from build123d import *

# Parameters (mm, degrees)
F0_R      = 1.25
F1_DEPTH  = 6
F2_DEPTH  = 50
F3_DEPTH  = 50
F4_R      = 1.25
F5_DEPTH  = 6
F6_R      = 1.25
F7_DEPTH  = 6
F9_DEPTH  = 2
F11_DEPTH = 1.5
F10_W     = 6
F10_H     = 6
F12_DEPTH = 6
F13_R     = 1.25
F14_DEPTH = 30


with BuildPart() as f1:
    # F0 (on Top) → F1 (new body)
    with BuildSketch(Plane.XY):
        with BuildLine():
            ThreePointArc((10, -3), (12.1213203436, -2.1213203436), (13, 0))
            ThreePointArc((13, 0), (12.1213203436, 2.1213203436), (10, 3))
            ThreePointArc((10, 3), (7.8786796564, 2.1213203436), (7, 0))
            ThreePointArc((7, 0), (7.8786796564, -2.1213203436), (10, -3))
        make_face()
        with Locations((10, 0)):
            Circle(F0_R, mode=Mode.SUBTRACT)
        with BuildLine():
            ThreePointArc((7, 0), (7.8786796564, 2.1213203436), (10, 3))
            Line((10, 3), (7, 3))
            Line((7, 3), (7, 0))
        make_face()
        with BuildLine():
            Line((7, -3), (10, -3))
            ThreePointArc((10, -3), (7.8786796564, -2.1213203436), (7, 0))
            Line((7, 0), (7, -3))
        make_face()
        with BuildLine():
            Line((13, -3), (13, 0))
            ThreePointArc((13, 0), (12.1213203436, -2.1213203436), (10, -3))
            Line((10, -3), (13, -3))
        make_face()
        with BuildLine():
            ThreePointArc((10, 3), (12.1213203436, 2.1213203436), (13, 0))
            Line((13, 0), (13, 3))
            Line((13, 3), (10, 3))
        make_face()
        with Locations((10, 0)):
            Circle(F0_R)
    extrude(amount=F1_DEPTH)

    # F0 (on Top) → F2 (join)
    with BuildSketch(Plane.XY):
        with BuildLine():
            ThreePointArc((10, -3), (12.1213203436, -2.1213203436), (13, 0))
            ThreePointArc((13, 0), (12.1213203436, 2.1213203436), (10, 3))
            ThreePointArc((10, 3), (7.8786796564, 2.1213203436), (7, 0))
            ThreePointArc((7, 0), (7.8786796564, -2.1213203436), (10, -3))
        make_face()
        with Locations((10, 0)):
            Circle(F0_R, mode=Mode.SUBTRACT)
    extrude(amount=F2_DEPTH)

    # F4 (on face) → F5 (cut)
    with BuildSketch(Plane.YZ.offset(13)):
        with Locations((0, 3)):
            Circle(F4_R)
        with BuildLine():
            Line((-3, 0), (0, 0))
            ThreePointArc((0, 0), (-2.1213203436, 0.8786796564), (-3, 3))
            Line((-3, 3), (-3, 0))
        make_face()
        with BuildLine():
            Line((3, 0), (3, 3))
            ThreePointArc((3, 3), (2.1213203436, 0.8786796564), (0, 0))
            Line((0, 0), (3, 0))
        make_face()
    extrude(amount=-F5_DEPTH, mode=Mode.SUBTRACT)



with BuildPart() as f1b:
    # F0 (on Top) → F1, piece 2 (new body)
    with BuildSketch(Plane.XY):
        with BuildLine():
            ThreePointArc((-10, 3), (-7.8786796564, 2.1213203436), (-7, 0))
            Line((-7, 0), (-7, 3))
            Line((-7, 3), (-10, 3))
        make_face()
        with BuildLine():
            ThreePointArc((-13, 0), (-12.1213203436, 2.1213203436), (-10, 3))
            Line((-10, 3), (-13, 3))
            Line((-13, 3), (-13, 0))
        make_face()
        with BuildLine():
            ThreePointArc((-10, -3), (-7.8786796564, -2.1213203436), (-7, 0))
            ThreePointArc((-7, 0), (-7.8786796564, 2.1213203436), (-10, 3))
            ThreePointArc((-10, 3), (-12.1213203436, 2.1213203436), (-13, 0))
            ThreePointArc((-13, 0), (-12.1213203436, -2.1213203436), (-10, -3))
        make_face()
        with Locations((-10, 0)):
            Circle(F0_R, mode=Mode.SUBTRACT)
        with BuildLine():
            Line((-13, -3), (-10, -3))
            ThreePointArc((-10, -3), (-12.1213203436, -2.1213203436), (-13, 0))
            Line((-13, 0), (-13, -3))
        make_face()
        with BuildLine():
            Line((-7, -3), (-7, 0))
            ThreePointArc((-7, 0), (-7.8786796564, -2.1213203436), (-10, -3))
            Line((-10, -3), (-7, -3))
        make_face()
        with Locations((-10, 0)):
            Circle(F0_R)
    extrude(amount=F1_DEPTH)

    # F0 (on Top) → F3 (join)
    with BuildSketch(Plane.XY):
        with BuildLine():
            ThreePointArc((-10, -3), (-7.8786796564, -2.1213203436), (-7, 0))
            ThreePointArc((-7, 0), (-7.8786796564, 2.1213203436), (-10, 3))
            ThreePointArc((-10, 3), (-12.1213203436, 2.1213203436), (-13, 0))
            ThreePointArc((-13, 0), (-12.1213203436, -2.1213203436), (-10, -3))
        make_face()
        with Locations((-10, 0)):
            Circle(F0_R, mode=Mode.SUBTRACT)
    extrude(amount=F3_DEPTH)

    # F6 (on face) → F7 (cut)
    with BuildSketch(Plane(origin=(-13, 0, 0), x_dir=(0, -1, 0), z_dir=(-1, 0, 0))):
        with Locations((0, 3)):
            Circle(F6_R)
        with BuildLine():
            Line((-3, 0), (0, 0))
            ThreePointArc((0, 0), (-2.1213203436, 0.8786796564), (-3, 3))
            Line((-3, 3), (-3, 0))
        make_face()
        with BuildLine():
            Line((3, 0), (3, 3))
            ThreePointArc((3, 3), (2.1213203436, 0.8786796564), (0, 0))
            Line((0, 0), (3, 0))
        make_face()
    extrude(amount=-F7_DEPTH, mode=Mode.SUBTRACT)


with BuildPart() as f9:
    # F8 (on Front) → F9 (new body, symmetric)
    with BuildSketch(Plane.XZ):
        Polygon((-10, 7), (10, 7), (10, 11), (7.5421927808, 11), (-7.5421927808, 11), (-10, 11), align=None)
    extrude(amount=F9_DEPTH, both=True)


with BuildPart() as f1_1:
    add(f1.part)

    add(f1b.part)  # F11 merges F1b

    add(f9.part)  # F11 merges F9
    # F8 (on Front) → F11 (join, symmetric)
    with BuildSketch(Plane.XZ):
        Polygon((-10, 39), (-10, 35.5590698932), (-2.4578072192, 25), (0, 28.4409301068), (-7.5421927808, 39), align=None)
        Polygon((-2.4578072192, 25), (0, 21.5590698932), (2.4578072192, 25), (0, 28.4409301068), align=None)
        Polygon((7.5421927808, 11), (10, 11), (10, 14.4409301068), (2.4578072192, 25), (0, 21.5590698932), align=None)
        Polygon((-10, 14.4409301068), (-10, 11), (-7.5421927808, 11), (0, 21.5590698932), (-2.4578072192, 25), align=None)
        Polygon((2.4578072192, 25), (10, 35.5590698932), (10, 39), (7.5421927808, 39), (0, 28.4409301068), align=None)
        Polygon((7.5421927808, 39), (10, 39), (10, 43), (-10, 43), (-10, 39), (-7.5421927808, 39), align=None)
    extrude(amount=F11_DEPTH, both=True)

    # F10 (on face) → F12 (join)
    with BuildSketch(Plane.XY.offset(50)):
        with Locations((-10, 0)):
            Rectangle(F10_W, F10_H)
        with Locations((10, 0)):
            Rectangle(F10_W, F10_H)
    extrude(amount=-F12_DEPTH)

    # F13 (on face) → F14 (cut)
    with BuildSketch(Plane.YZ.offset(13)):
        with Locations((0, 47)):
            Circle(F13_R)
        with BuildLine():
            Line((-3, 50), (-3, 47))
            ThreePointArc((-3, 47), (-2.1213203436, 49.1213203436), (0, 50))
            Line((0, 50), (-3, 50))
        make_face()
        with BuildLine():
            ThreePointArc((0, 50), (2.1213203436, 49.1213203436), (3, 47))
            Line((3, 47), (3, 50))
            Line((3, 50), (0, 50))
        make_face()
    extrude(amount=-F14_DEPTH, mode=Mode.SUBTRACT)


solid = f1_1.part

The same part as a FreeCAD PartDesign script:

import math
import FreeCAD as App
import Part
import Sketcher
from FreeCAD import Vector
Q = App.Units.Quantity


def add_polygon(sketch, points):
    """Adds a closed chain of lines whose ends are joined by coincident constraints."""
    first, n = sketch.GeometryCount, len(points)
    for a, b in zip(points, points[1:] + points[:1]):
        sketch.addGeometry(Part.LineSegment(App.Vector(*a, 0), App.Vector(*b, 0)), False)
    for i in range(n):
        sketch.addConstraint(Sketcher.Constraint("Coincident", first + i, 2, first + (i + 1) % n, 1))

doc = App.newDocument("Part")
body = doc.addObject("PartDesign::Body", "Body")

# Sketch on XY plane
sketch1 = doc.addObject("Sketcher::SketchObject", "Sketch")
body.addObject(sketch1)
sketch1.AttachmentSupport = (doc.XY_Plane, [""])
sketch1.MapMode = "FlatFace"
add_polygon(sketch1, [(7, 3), (7, -3), (13, -3), (13, 3)])  # lines 0-3
sketch1.addConstraint([
    Sketcher.Constraint("Vertical", 0),
    Sketcher.Constraint("Horizontal", 1),
    Sketcher.Constraint("Vertical", 2),
    Sketcher.Constraint("Horizontal", 3),
    Sketcher.Constraint("Equal", 3, 0),
    Sketcher.Constraint("DistanceX", 1, 1, 1, 2, Q("6 mm")),
    Sketcher.Constraint("DistanceX", -1, 1, 0, 2, Q("7 mm")),
    Sketcher.Constraint("DistanceY", 0, 2, -1, 1, Q("3 mm")),
])
pad1 = doc.addObject("PartDesign::Pad", "Pad")
body.addObject(pad1)
pad1.Profile = sketch1
pad1.Length = 6

# Sketch on XY plane
sketch2 = doc.addObject("Sketcher::SketchObject", "Sketch001")
body.addObject(sketch2)
sketch2.AttachmentSupport = (doc.XY_Plane, [""])
sketch2.MapMode = "FlatFace"
sketch2.addGeometry([
    Part.ArcOfCircle(Part.Circle(Vector(10, 0, 0), Vector(0, 0, 1), 3), math.radians(-90), math.radians(0)),  # 0
    Part.ArcOfCircle(Part.Circle(Vector(10, 0, 0), Vector(0, 0, 1), 3), math.radians(0), math.radians(90)),  # 1
    Part.ArcOfCircle(Part.Circle(Vector(10, 0, 0), Vector(0, 0, 1), 3), math.radians(90), math.radians(180)),  # 2
    Part.ArcOfCircle(Part.Circle(Vector(10, 0, 0), Vector(0, 0, 1), 3), math.radians(180), math.radians(270)),  # 3
    Part.Circle(Vector(10, 0, 0), Vector(0, 0, 1), 1.2),  # 4
], False)
sketch2.addConstraint([
    Sketcher.Constraint("Tangent", 0, 2, 1, 1),
    Sketcher.Constraint("Tangent", 1, 2, 2, 1),
    Sketcher.Constraint("Tangent", 2, 2, 3, 1),
    Sketcher.Constraint("Tangent", 3, 2, 0, 1),
    Sketcher.Constraint("Coincident", 4, 3, 0, 3),
    Sketcher.Constraint("Equal", 0, 1),
    Sketcher.Constraint("Symmetric", 1, 2, 3, 2, -1),
    Sketcher.Constraint("PointOnObject", 0, 2, -1),
    Sketcher.Constraint("PointOnObject", 2, 2, -1),
    Sketcher.Constraint("Vertical", 4, 3, 1, 2),
    Sketcher.Constraint("Radius", 0, Q("3 mm")),
    Sketcher.Constraint("Diameter", 4, Q("2.5 mm")),
    Sketcher.Constraint("DistanceX", -1, 1, 0, 3, Q("10 mm")),
])
pad2 = doc.addObject("PartDesign::Pad", "Pad001")
body.addObject(pad2)
pad2.Profile = sketch2
pad2.Length = 50

# Sketch on YZ plane
sketch3 = doc.addObject("Sketcher::SketchObject", "Sketch002")
body.addObject(sketch3)
sketch3.AttachmentSupport = (doc.YZ_Plane, [""])
sketch3.MapMode = "FlatFace"
sketch3.AttachmentOffset = App.Placement(Vector(0, 0, 13), App.Rotation())
sketch3.addGeometry([
    Part.Circle(Vector(0, 3, 0), Vector(0, 0, 1), 1.2),  # 0
    Part.LineSegment(Vector(-3, 0, 0), Vector(0, 0, 0)),  # 1
    Part.ArcOfCircle(Part.Circle(Vector(0, 3, 0), Vector(0, 0, 1), 3), math.radians(180), math.radians(270)),  # 2
    Part.LineSegment(Vector(-3, 3, 0), Vector(-3, 0, 0)),  # 3
    Part.LineSegment(Vector(3, 0, 0), Vector(3, 3, 0)),  # 4
    Part.ArcOfCircle(Part.Circle(Vector(0, 3, 0), Vector(0, 0, 1), 3), math.radians(-90), math.radians(0)),  # 5
    Part.LineSegment(Vector(0, 0, 0), Vector(3, 0, 0)),  # 6
], False)
sketch3.addConstraint([
    Sketcher.Constraint("Tangent", 1, 2, 2, 2),
    Sketcher.Constraint("Tangent", 2, 1, 3, 1),
    Sketcher.Constraint("Coincident", 3, 2, 1, 1),
    Sketcher.Constraint("Tangent", 4, 2, 5, 2),
    Sketcher.Constraint("Tangent", 5, 1, 6, 1),
    Sketcher.Constraint("Coincident", 6, 2, 4, 1),
    Sketcher.Constraint("Horizontal", 1),
    Sketcher.Constraint("Vertical", 3),
    Sketcher.Constraint("Vertical", 4),
    Sketcher.Constraint("Horizontal", 6),
    Sketcher.Constraint("Coincident", 1, 2, -1, 1),
    Sketcher.Constraint("Coincident", 5, 1, -1, 1),
    Sketcher.Constraint("Coincident", 2, 3, 0, 3),
    Sketcher.Constraint("Equal", 2, 5),
    Sketcher.Constraint("Radius", 2, Q("3 mm")),
    Sketcher.Constraint("Diameter", 0, Q("2.5 mm")),
])
pocket1 = doc.addObject("PartDesign::Pocket", "Pocket")
body.addObject(pocket1)
pocket1.Profile = sketch3
pocket1.Length = 6
body2 = doc.addObject("PartDesign::Body", "Body001")

# Sketch on XY plane
sketch4 = doc.addObject("Sketcher::SketchObject", "Sketch003")
body2.addObject(sketch4)
sketch4.AttachmentSupport = (doc.getObject("XY_Plane001"), [""])
sketch4.MapMode = "FlatFace"
add_polygon(sketch4, [(-7, 3), (-13, 3), (-13, -3), (-7, -3)])  # lines 0-3
sketch4.addConstraint([
    Sketcher.Constraint("Horizontal", 0),
    Sketcher.Constraint("Vertical", 1),
    Sketcher.Constraint("Horizontal", 2),
    Sketcher.Constraint("Vertical", 3),
    Sketcher.Constraint("Equal", 2, 1),
    Sketcher.Constraint("DistanceX", 0, 2, 0, 1, Q("6 mm")),
    Sketcher.Constraint("DistanceX", 0, 2, -1, 1, Q("13 mm")),
    Sketcher.Constraint("DistanceY", -1, 1, 0, 2, Q("3 mm")),
])
pad3 = doc.addObject("PartDesign::Pad", "Pad002")
body2.addObject(pad3)
pad3.Profile = sketch4
pad3.Length = 6

# Sketch on XY plane
sketch5 = doc.addObject("Sketcher::SketchObject", "Sketch004")
body2.addObject(sketch5)
sketch5.AttachmentSupport = (doc.getObject("XY_Plane001"), [""])
sketch5.MapMode = "FlatFace"
sketch5.addGeometry([
    Part.ArcOfCircle(Part.Circle(Vector(-10, 0, 0), Vector(0, 0, 1), 3), math.radians(-90), math.radians(0)),  # 0
    Part.ArcOfCircle(Part.Circle(Vector(-10, 0, 0), Vector(0, 0, 1), 3), math.radians(0), math.radians(90)),  # 1
    Part.ArcOfCircle(Part.Circle(Vector(-10, 0, 0), Vector(0, 0, 1), 3), math.radians(90), math.radians(180)),  # 2
    Part.ArcOfCircle(Part.Circle(Vector(-10, 0, 0), Vector(0, 0, 1), 3), math.radians(180), math.radians(270)),  # 3
    Part.Circle(Vector(-10, 0, 0), Vector(0, 0, 1), 1.2),  # 4
], False)
sketch5.addConstraint([
    Sketcher.Constraint("Tangent", 0, 2, 1, 1),
    Sketcher.Constraint("Tangent", 1, 2, 2, 1),
    Sketcher.Constraint("Tangent", 2, 2, 3, 1),
    Sketcher.Constraint("Tangent", 3, 2, 0, 1),
    Sketcher.Constraint("Coincident", 4, 3, 0, 3),
    Sketcher.Constraint("Equal", 0, 1),
    Sketcher.Constraint("Symmetric", 1, 2, 3, 2, -1),
    Sketcher.Constraint("PointOnObject", 0, 2, -1),
    Sketcher.Constraint("PointOnObject", 2, 2, -1),
    Sketcher.Constraint("Vertical", 4, 3, 1, 2),
    Sketcher.Constraint("Radius", 0, Q("3 mm")),
    Sketcher.Constraint("Diameter", 4, Q("2.5 mm")),
    Sketcher.Constraint("DistanceX", 0, 3, -1, 1, Q("10 mm")),
])
pad4 = doc.addObject("PartDesign::Pad", "Pad003")
body2.addObject(pad4)
pad4.Profile = sketch5
pad4.Length = 50

# Sketch on YZ plane
sketch6 = doc.addObject("Sketcher::SketchObject", "Sketch005")
body2.addObject(sketch6)
sketch6.AttachmentSupport = (doc.getObject("YZ_Plane001"), [""])
sketch6.MapMode = "FlatFace"
sketch6.AttachmentOffset = App.Placement(Vector(0, 0, -13), App.Rotation())
sketch6.addGeometry([
    Part.Circle(Vector(0, 3, 0), Vector(0, 0, 1), 1.2),  # 0
    Part.LineSegment(Vector(3, 0, 0), Vector(0, 0, 0)),  # 1
    Part.ArcOfCircle(Part.Circle(Vector(0, 3, 0), Vector(0, 0, 1), 3), math.radians(-90), math.radians(0)),  # 2
    Part.LineSegment(Vector(3, 3, 0), Vector(3, 0, 0)),  # 3
    Part.LineSegment(Vector(-3, 0, 0), Vector(-3, 3, 0)),  # 4
    Part.ArcOfCircle(Part.Circle(Vector(0, 3, 0), Vector(0, 0, 1), 3), math.radians(180), math.radians(270)),  # 5
    Part.LineSegment(Vector(0, 0, 0), Vector(-3, 0, 0)),  # 6
], False)
sketch6.addConstraint([
    Sketcher.Constraint("Tangent", 1, 2, 2, 1),
    Sketcher.Constraint("Tangent", 2, 2, 3, 1),
    Sketcher.Constraint("Coincident", 3, 2, 1, 1),
    Sketcher.Constraint("Tangent", 4, 2, 5, 1),
    Sketcher.Constraint("Tangent", 5, 2, 6, 1),
    Sketcher.Constraint("Coincident", 6, 2, 4, 1),
    Sketcher.Constraint("Horizontal", 1),
    Sketcher.Constraint("Vertical", 3),
    Sketcher.Constraint("Vertical", 4),
    Sketcher.Constraint("Horizontal", 6),
    Sketcher.Constraint("Coincident", 1, 2, -1, 1),
    Sketcher.Constraint("Coincident", 5, 2, -1, 1),
    Sketcher.Constraint("Coincident", 2, 3, 0, 3),
    Sketcher.Constraint("Equal", 2, 5),
    Sketcher.Constraint("Radius", 2, Q("3 mm")),
    Sketcher.Constraint("Diameter", 0, Q("2.5 mm")),
])
pocket2 = doc.addObject("PartDesign::Pocket", "Pocket001")
body2.addObject(pocket2)
pocket2.Profile = sketch6
pocket2.Length = 6
pocket2.Reversed = True
body3 = doc.addObject("PartDesign::Body", "Body002")

# Sketch on XZ plane
sketch7 = doc.addObject("Sketcher::SketchObject", "Sketch006")
body3.addObject(sketch7)
sketch7.AttachmentSupport = (doc.getObject("XZ_Plane002"), [""])
sketch7.MapMode = "FlatFace"
add_polygon(sketch7, [(-10, 7), (10, 7), (10, 11), (-10, 11)])  # lines 0-3
sketch7.addConstraint([
    Sketcher.Constraint("Horizontal", 0),
    Sketcher.Constraint("Vertical", 1),
    Sketcher.Constraint("Horizontal", 2),
    Sketcher.Constraint("Vertical", 3),
    Sketcher.Constraint("DistanceX", 0, 1, 0, 2, Q("20 mm")),
    Sketcher.Constraint("DistanceY", 1, 1, 1, 2, Q("4 mm")),
    Sketcher.Constraint("DistanceX", -1, 1, 0, 2, Q("10 mm")),
    Sketcher.Constraint("DistanceY", -1, 1, 0, 2, Q("7 mm")),
])
pad5 = doc.addObject("PartDesign::Pad", "Pad004")
body3.addObject(pad5)
pad5.Profile = sketch7
pad5.Length = 4
pad5.Midplane = True
body.AllowCompound = True
doc.recompute()

boolean = doc.addObject("PartDesign::Boolean", "Boolean")
body.addObject(boolean)
boolean.Type = "Fuse"
boolean.addObjects([body2])
doc.recompute()

boolean2 = doc.addObject("PartDesign::Boolean", "Boolean001")
body.addObject(boolean2)
boolean2.Type = "Fuse"
boolean2.addObjects([body3])

# Sketch on XZ plane
sketch8 = doc.addObject("Sketcher::SketchObject", "Sketch007")
body.addObject(sketch8)
sketch8.AttachmentSupport = (doc.XZ_Plane, [""])
sketch8.MapMode = "FlatFace"
add_polygon(sketch8, [(-10, 35.6), (-2.5, 25), (-10, 14.4), (-10, 11), (-7.5, 11), (0, 21.6), (7.5, 11), (10, 11), (10, 14.4), (2.5, 25), (10, 35.6), (10, 43), (-10, 43)])  # lines 0-12
add_polygon(sketch8, [(7.5, 39), (0, 28.4), (-7.5, 39)])  # lines 13-15
sketch8.addConstraint([
    Sketcher.Constraint("Vertical", 2),
    Sketcher.Constraint("Horizontal", 3),
    Sketcher.Constraint("Horizontal", 6),
    Sketcher.Constraint("Vertical", 7),
    Sketcher.Constraint("Vertical", 10),
    Sketcher.Constraint("Horizontal", 11),
    Sketcher.Constraint("Vertical", 12),
    Sketcher.Constraint("Horizontal", 15),
    Sketcher.Constraint("Symmetric", 3, 2, 5, 2, -2),
    Sketcher.Constraint("Symmetric", 1, 2, 7, 2, -2),
    Sketcher.Constraint("Symmetric", 0, 2, 8, 2, -2),
    Sketcher.Constraint("Symmetric", 9, 2, 12, 2, -2),
    Sketcher.Constraint("PointOnObject", 4, 2, -2),
    Sketcher.Constraint("PointOnObject", 13, 2, -2),
    Sketcher.Constraint("Parallel", 1, 4),
    Sketcher.Constraint("Parallel", 0, 5),
    Sketcher.Constraint("Parallel", 9, 13),
    Sketcher.Constraint("Parallel", 8, 14),
    Sketcher.Constraint("Vertical", 7, 2, 9, 2),
    Sketcher.Constraint("Vertical", 3, 2, 14, 2),
    Sketcher.Constraint("Equal", 1, 4),
    Sketcher.Constraint("DistanceX", 11, 2, 11, 1, Q("20 mm")),
    Sketcher.Constraint("DistanceY", -1, 1, 0, 2, Q("25 mm")),
    Sketcher.Constraint("DistanceY", -1, 1, 2, 2, Q("11 mm")),
    Sketcher.Constraint("DistanceY", -1, 1, 10, 2, Q("43 mm")),
    Sketcher.Constraint("DistanceY", -1, 1, 14, 2, Q("39 mm")),
    Sketcher.Constraint("DistanceY", 2, 2, 2, 1, Q("3.44093 mm")),
    Sketcher.Constraint("Distance", 0, Q("12.976079 mm")),
])
pad6 = doc.addObject("PartDesign::Pad", "Pad005")
body.addObject(pad6)
pad6.Profile = sketch8
pad6.Length = 3
pad6.Midplane = True

# Sketch on XY plane
sketch9 = doc.addObject("Sketcher::SketchObject", "Sketch008")
body.addObject(sketch9)
sketch9.AttachmentSupport = (doc.XY_Plane, [""])
sketch9.MapMode = "FlatFace"
sketch9.AttachmentOffset = App.Placement(Vector(0, 0, 50), App.Rotation())
add_polygon(sketch9, [(-13, 3), (-13, -3), (-7, -3), (-7, 3)])  # lines 0-3
add_polygon(sketch9, [(7, 3), (7, -3), (13, -3), (13, 3)])  # lines 4-7
sketch9.addConstraint([
    Sketcher.Constraint("Vertical", 0),
    Sketcher.Constraint("Horizontal", 1),
    Sketcher.Constraint("Vertical", 2),
    Sketcher.Constraint("Horizontal", 3),
    Sketcher.Constraint("Vertical", 4),
    Sketcher.Constraint("Horizontal", 5),
    Sketcher.Constraint("Vertical", 6),
    Sketcher.Constraint("Horizontal", 7),
    Sketcher.Constraint("Symmetric", 2, 2, 4, 2, -1, 1),
    Sketcher.Constraint("Symmetric", 0, 2, 6, 2, -1, 1),
    Sketcher.Constraint("Horizontal", 1, 2, 4, 2),
    Sketcher.Constraint("Equal", 7, 0),
    Sketcher.Constraint("DistanceX", 1, 1, 1, 2, Q("6 mm")),
    Sketcher.Constraint("DistanceX", 0, 2, -1, 1, Q("13 mm")),
])
pad7 = doc.addObject("PartDesign::Pad", "Pad006")
body.addObject(pad7)
pad7.Profile = sketch9
pad7.Length = 6
pad7.Reversed = True

# Sketch on YZ plane
sketch10 = doc.addObject("Sketcher::SketchObject", "Sketch009")
body.addObject(sketch10)
sketch10.AttachmentSupport = (doc.YZ_Plane, [""])
sketch10.MapMode = "FlatFace"
sketch10.AttachmentOffset = App.Placement(Vector(0, 0, 13), App.Rotation())
sketch10.addGeometry([
    Part.Circle(Vector(0, 47, 0), Vector(0, 0, 1), 1.2),  # 0
    Part.LineSegment(Vector(-3, 50, 0), Vector(-3, 47, 0)),  # 1
    Part.ArcOfCircle(Part.Circle(Vector(0, 47, 0), Vector(0, 0, 1), 3), math.radians(90), math.radians(180)),  # 2
    Part.LineSegment(Vector(0, 50, 0), Vector(-3, 50, 0)),  # 3
    Part.ArcOfCircle(Part.Circle(Vector(0, 47, 0), Vector(0, 0, 1), 3), math.radians(0), math.radians(90)),  # 4
    Part.LineSegment(Vector(3, 47, 0), Vector(3, 50, 0)),  # 5
    Part.LineSegment(Vector(3, 50, 0), Vector(0, 50, 0)),  # 6
], False)
sketch10.addConstraint([
    Sketcher.Constraint("Tangent", 1, 2, 2, 2),
    Sketcher.Constraint("Tangent", 2, 1, 3, 1),
    Sketcher.Constraint("Coincident", 3, 2, 1, 1),
    Sketcher.Constraint("Tangent", 4, 1, 5, 1),
    Sketcher.Constraint("Coincident", 5, 2, 6, 1),
    Sketcher.Constraint("Tangent", 6, 2, 4, 2),
    Sketcher.Constraint("Vertical", 1),
    Sketcher.Constraint("Horizontal", 3),
    Sketcher.Constraint("Vertical", 5),
    Sketcher.Constraint("Horizontal", 6),
    Sketcher.Constraint("Coincident", 2, 3, 0, 3),
    Sketcher.Constraint("Coincident", 4, 3, 0, 3),
    Sketcher.Constraint("Equal", 2, 4),
    Sketcher.Constraint("PointOnObject", 0, 3, -2),
    Sketcher.Constraint("Radius", 2, Q("3 mm")),
    Sketcher.Constraint("Diameter", 0, Q("2.5 mm")),
    Sketcher.Constraint("DistanceY", -1, 1, 0, 3, Q("47 mm")),
])
pocket3 = doc.addObject("PartDesign::Pocket", "Pocket002")
body.addObject(pocket3)
pocket3.Profile = sketch10
pocket3.Length = 30

doc.recompute()
